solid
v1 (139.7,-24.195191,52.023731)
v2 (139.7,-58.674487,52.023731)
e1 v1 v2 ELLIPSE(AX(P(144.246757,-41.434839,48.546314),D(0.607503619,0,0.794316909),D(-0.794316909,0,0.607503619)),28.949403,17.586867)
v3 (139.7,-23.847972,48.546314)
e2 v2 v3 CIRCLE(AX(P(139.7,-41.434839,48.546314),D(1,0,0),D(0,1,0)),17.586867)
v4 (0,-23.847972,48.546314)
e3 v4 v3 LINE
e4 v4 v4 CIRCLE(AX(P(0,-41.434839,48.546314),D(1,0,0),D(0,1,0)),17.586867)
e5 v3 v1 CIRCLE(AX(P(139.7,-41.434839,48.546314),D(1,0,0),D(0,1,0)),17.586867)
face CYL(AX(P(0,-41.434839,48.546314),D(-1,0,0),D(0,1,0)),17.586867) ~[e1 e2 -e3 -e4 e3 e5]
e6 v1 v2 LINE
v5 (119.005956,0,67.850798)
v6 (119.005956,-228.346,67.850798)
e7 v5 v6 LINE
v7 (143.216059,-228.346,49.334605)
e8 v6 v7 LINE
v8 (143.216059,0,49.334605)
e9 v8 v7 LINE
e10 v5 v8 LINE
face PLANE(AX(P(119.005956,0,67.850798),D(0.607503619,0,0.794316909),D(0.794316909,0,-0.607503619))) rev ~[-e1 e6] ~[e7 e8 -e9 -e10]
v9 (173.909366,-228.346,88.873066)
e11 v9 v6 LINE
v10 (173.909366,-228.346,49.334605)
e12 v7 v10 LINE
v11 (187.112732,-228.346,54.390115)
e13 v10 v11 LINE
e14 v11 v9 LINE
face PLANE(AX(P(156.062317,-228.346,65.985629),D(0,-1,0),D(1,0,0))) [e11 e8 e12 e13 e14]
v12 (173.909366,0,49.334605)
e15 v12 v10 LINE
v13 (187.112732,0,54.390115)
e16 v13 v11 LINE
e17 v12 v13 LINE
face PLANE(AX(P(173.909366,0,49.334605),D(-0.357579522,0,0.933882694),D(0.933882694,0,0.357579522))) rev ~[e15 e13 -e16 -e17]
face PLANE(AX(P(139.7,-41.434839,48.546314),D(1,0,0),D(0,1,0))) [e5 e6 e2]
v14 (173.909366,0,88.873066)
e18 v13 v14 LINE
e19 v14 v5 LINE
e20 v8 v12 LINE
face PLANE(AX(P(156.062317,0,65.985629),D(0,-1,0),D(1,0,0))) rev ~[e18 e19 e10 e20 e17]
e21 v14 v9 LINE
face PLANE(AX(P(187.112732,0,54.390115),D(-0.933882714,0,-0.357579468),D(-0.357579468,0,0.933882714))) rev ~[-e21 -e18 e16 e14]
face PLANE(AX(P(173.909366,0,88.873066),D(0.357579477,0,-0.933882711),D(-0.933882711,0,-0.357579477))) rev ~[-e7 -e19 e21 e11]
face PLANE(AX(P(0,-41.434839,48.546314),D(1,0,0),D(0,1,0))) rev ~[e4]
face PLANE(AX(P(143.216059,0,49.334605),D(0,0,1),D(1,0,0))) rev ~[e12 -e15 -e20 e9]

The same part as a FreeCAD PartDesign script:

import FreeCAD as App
import Part
import Sketcher
from FreeCAD import Vector
Q = App.Units.Quantity


def add_polygon(sketch, points):
    """Adds a closed chain of lines whose ends are joined by coincident constraints."""
    first, n = sketch.GeometryCount, len(points)
    for a, b in zip(points, points[1:] + points[:1]):
        sketch.addGeometry(Part.LineSegment(App.Vector(*a, 0), App.Vector(*b, 0)), False)
    for i in range(n):
        sketch.addConstraint(Sketcher.Constraint("Coincident", first + i, 2, first + (i + 1) % n, 1))

doc = App.newDocument("Part")
body = doc.addObject("PartDesign::Body", "Body")

# Sketch on YZ plane
sketch1 = doc.addObject("Sketcher::SketchObject", "Sketch")
body.addObject(sketch1)
sketch1.AttachmentSupport = (doc.YZ_Plane, [""])
sketch1.MapMode = "FlatFace"
sketch1.addGeometry(Part.Circle(Vector(-41, 49, 0), Vector(0, 0, 1), 18), False)
sketch1.addConstraint([
    Sketcher.Constraint("Diameter", 0, Q("35.173734 mm")),
    Sketcher.Constraint("DistanceX", 0, 3, -1, 1, Q("41.434839 mm")),
    Sketcher.Constraint("DistanceY", -1, 1, 0, 3, Q("48.546314 mm")),
])
pad1 = doc.addObject("PartDesign::Pad", "Pad")
body.addObject(pad1)
pad1.Profile = sketch1
pad1.Length = Q("5.5 in")

# Sketch on XZ plane
sketch2 = doc.addObject("Sketcher::SketchObject", "Sketch001")
body.addObject(sketch2)
sketch2.AttachmentSupport = (doc.XZ_Plane, [""])
sketch2.MapMode = "FlatFace"
add_polygon(sketch2, [(174, 89), (119, 68), (143, 49), (174, 49), (187, 54)])  # lines 0-4
sketch2.addConstraint([
    Sketcher.Constraint("Horizontal", 2),
    Sketcher.Constraint("Parallel", 0, 3),
    Sketcher.Constraint("Perpendicular", 3, 4),
    Sketcher.Constraint("Vertical", 2, 2, 4, 2),
    Sketcher.Constraint("Distance", 1, Q("30.479148 mm")),
    Sketcher.Constraint("Distance", 3, Q("14.138142 mm")),
    Sketcher.Constraint("DistanceX", 2, 1, 2, 2, Q("30.693307 mm")),
    Sketcher.Constraint("DistanceX", -1, 1, 1, 2, Q("143.216059 mm")),
    Sketcher.Constraint("DistanceX", -1, 1, 3, 2, Q("187.112732 mm")),
    Sketcher.Constraint("DistanceY", -1, 1, 0, 2, Q("67.850798 mm")),
])
pad2 = doc.addObject("PartDesign::Pad", "Pad001")
body.addObject(pad2)
pad2.Profile = sketch2
pad2.Length = Q("8.99 in")

doc.recompute()
